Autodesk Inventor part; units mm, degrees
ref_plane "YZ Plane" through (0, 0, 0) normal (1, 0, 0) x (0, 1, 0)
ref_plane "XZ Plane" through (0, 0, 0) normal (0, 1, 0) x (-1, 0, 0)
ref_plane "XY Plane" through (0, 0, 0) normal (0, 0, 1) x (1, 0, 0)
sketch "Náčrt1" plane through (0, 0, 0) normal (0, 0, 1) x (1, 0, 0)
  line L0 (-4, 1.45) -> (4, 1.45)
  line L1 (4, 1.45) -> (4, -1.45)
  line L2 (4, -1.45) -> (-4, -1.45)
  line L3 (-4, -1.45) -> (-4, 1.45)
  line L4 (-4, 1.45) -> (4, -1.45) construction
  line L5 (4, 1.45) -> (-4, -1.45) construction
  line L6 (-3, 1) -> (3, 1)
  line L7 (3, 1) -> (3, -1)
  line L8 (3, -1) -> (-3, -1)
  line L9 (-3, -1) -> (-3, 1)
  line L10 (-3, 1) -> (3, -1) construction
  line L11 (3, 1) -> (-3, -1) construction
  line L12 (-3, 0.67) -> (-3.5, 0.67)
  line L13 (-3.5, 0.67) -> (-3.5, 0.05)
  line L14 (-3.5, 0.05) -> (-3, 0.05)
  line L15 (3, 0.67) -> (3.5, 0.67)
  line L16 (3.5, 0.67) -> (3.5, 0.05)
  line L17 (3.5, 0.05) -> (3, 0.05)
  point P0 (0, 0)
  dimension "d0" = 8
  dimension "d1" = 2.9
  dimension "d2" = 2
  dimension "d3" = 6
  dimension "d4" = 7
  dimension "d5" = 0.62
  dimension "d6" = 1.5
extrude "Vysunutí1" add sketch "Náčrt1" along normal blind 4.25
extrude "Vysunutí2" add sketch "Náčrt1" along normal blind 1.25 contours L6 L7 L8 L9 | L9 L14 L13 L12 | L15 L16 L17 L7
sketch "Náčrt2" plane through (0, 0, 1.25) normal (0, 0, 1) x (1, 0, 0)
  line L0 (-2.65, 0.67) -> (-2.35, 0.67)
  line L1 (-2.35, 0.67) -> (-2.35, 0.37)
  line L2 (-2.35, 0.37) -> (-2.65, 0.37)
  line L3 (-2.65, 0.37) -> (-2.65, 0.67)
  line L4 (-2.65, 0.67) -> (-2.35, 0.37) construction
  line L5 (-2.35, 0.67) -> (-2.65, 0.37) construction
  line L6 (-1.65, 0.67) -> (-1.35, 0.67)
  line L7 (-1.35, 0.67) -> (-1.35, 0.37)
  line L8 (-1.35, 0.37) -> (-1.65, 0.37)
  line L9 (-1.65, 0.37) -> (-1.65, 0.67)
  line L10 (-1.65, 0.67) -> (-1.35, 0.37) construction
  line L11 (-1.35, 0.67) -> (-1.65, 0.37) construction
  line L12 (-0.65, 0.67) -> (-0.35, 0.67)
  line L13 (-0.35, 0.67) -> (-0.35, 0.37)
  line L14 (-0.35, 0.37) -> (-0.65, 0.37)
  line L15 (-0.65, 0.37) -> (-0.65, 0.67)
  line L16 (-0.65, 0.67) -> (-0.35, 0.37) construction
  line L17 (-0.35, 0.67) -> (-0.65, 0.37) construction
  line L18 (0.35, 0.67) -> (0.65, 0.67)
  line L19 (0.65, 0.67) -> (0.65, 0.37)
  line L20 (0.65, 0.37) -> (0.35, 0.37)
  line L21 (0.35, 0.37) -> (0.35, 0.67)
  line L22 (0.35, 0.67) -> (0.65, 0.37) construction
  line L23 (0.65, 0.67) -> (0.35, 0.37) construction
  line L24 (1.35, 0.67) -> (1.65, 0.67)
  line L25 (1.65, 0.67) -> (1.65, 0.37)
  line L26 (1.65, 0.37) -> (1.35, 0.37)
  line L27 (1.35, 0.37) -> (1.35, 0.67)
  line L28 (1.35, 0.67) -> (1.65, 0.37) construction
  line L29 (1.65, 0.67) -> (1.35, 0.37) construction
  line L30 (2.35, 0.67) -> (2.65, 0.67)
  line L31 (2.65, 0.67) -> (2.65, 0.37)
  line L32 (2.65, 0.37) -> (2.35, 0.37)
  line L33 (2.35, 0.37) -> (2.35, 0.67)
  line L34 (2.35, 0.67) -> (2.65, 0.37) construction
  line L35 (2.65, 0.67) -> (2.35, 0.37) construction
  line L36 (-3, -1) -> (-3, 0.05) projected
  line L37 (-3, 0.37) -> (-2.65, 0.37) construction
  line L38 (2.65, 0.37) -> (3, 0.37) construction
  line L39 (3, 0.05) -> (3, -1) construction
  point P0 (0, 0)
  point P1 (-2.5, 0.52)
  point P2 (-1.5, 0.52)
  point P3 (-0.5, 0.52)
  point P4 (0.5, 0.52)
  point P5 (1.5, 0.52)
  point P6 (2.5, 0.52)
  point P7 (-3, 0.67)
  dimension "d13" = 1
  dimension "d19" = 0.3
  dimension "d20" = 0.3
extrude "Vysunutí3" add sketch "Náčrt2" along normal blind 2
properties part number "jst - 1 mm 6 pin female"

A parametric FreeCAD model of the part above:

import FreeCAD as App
import Part
import Sketcher

V = App.Vector
Q = App.Units.Quantity

doc = App.newDocument("Part")
params = doc.addObject("Spreadsheet::Sheet", "Params")
for row, (alias, value) in enumerate([
    ("sketch1_width", "8 mm"),
    ("sketch1_width2", "6 mm"),
    ("sketch1_height", "2.9 mm"),
    ("sketch1_height2", "0.62 mm"),
    ("sketch1_width3", "0.5 mm"),
    ("pad1_length", "4.25 mm"),
    ("sketch2_width", "6 mm"),
    ("sketch2_height", "0.62 mm"),
    ("sketch2_width2", "0.5 mm"),
    ("sketch2_height2", "0.33 mm"),
    ("pad2_length", "1.25 mm"),
    ("sketch3_width", "0.3 mm"),
    ("pad3_length", "2 mm"),
], start=1):
    params.set(f"A{row}", alias)
    params.set(f"B{row}", "=" + value)
    params.setAlias(f"B{row}", alias)

body = doc.addObject("PartDesign::Body", "Body")

sketch1 = body.newObject("Sketcher::SketchObject", "Sketch")
sketch1.AttachmentSupport = (doc.getObject("XY_Plane"), [""])
sketch1.MapMode = "FlatFace"
sketch1.addGeometry([
    Part.LineSegment(V(4, 1.45, 0), V(-4, 1.45, 0)),
    Part.LineSegment(V(-4, 1.45, 0), V(-4, -1.45, 0)),
    Part.LineSegment(V(-4, -1.45, 0), V(4, -1.45, 0)),
    Part.LineSegment(V(4, -1.45, 0), V(4, 1.45, 0)),
    Part.LineSegment(V(-3, 0.67, 0), V(-3, 1, 0)),
    Part.LineSegment(V(-3, 1, 0), V(3, 1, 0)),
    Part.LineSegment(V(3, 1, 0), V(3, 0.67, 0)),
    Part.LineSegment(V(3, 0.67, 0), V(3.5, 0.67, 0)),
    Part.LineSegment(V(3.5, 0.67, 0), V(3.5, 0.05, 0)),
    Part.LineSegment(V(3.5, 0.05, 0), V(3, 0.05, 0)),
    Part.LineSegment(V(3, 0.05, 0), V(3, -1, 0)),
    Part.LineSegment(V(3, -1, 0), V(-3, -1, 0)),
    Part.LineSegment(V(-3, -1, 0), V(-3, 0.05, 0)),
    Part.LineSegment(V(-3, 0.05, 0), V(-3.5, 0.05, 0)),
    Part.LineSegment(V(-3.5, 0.05, 0), V(-3.5, 0.67, 0)),
    Part.LineSegment(V(-3.5, 0.67, 0), V(-3, 0.67, 0)),
], False)
sketch1.addConstraint([
    Sketcher.Constraint("Coincident", 0, 2, 1, 1),
    Sketcher.Constraint("Coincident", 1, 2, 2, 1),
    Sketcher.Constraint("Coincident", 2, 2, 3, 1),
    Sketcher.Constraint("Coincident", 3, 2, 0, 1),
    Sketcher.Constraint("Coincident", 4, 2, 5, 1),
    Sketcher.Constraint("Coincident", 5, 2, 6, 1),
    Sketcher.Constraint("Coincident", 6, 2, 7, 1),
    Sketcher.Constraint("Coincident", 7, 2, 8, 1),
    Sketcher.Constraint("Coincident", 8, 2, 9, 1),
    Sketcher.Constraint("Coincident", 9, 2, 10, 1),
    Sketcher.Constraint("Coincident", 10, 2, 11, 1),
    Sketcher.Constraint("Coincident", 11, 2, 12, 1),
    Sketcher.Constraint("Coincident", 12, 2, 13, 1),
    Sketcher.Constraint("Coincident", 13, 2, 14, 1),
    Sketcher.Constraint("Coincident", 14, 2, 15, 1),
    Sketcher.Constraint("Coincident", 15, 2, 4, 1),
    Sketcher.Constraint("Horizontal", 0),
    Sketcher.Constraint("Vertical", 1),
    Sketcher.Constraint("Horizontal", 2),
    Sketcher.Constraint("Vertical", 3),
    Sketcher.Constraint("Vertical", 4),
    Sketcher.Constraint("Horizontal", 5),
    Sketcher.Constraint("Vertical", 6),
    Sketcher.Constraint("Horizontal", 7),
    Sketcher.Constraint("Vertical", 8),
    Sketcher.Constraint("Horizontal", 9),
    Sketcher.Constraint("Vertical", 10),
    Sketcher.Constraint("Horizontal", 11),
    Sketcher.Constraint("Vertical", 12),
    Sketcher.Constraint("Horizontal", 13),
    Sketcher.Constraint("Vertical", 14),
    Sketcher.Constraint("Horizontal", 15),
    Sketcher.Constraint("Symmetric", 0, 2, 2, 2, -1, 1),
    Sketcher.Constraint("Symmetric", 4, 2, 10, 2, -1, 1),
    Sketcher.Constraint("Symmetric", 9, 2, 12, 2, -2),
    Sketcher.Constraint("Symmetric", 7, 2, 14, 2, -2),
    Sketcher.Constraint("Vertical", 6, 2, 9, 2),
    Sketcher.Constraint("DistanceX", 0, 2, 0, 1, Q("8 mm")),
    Sketcher.Constraint("DistanceX", 5, 1, 5, 2, Q("6 mm")),
    Sketcher.Constraint("DistanceY", 1, 2, 1, 1, Q("2.9 mm")),
    Sketcher.Constraint("DistanceY", 11, 2, 4, 2, Q("2 mm")),
    Sketcher.Constraint("DistanceY", 8, 2, 8, 1, Q("0.62 mm")),
    Sketcher.Constraint("DistanceY", 2, 2, 8, 2, Q("1.5 mm")),
    Sketcher.Constraint("DistanceX", 7, 1, 7, 2, Q("0.5 mm")),
])
sketch1.setExpression("Constraints[37]", "Params.sketch1_width")
sketch1.setExpression("Constraints[38]", "Params.sketch1_width2")
sketch1.setExpression("Constraints[39]", "Params.sketch1_height")
sketch1.setExpression("Constraints[41]", "Params.sketch1_height2")
sketch1.setExpression("Constraints[43]", "Params.sketch1_width3")
pad1 = body.newObject("PartDesign::Pad", "Pad")
pad1.Profile = sketch1
pad1.setExpression("Length", "Params.pad1_length")

sketch2 = body.newObject("Sketcher::SketchObject", "Sketch001")
sketch2.AttachmentSupport = (doc.getObject("XY_Plane"), [""])
sketch2.MapMode = "FlatFace"
sketch2.addGeometry([
    Part.LineSegment(V(3, 1, 0), V(-3, 1, 0)),
    Part.LineSegment(V(-3, 1, 0), V(-3, 0.67, 0)),
    Part.LineSegment(V(-3, 0.67, 0), V(-3.5, 0.67, 0)),
    Part.LineSegment(V(-3.5, 0.67, 0), V(-3.5, 0.05, 0)),
    Part.LineSegment(V(-3.5, 0.05, 0), V(-3, 0.05, 0)),
    Part.LineSegment(V(-3, 0.05, 0), V(-3, -1, 0)),
    Part.LineSegment(V(-3, -1, 0), V(3, -1, 0)),
    Part.LineSegment(V(3, -1, 0), V(3, 0.05, 0)),
    Part.LineSegment(V(3, 0.05, 0), V(3.5, 0.05, 0)),
    Part.LineSegment(V(3.5, 0.05, 0), V(3.5, 0.67, 0)),
    Part.LineSegment(V(3.5, 0.67, 0), V(3, 0.67, 0)),
    Part.LineSegment(V(3, 0.67, 0), V(3, 1, 0)),
], False)
sketch2.addConstraint([
    Sketcher.Constraint("Coincident", 0, 2, 1, 1),
    Sketcher.Constraint("Coincident", 1, 2, 2, 1),
    Sketcher.Constraint("Coincident", 2, 2, 3, 1),
    Sketcher.Constraint("Coincident", 3, 2, 4, 1),
    Sketcher.Constraint("Coincident", 4, 2, 5, 1),
    Sketcher.Constraint("Coincident", 5, 2, 6, 1),
    Sketcher.Constraint("Coincident", 6, 2, 7, 1),
    Sketcher.Constraint("Coincident", 7, 2, 8, 1),
    Sketcher.Constraint("Coincident", 8, 2, 9, 1),
    Sketcher.Constraint("Coincident", 9, 2, 10, 1),
    Sketcher.Constraint("Coincident", 10, 2, 11, 1),
    Sketcher.Constraint("Coincident", 11, 2, 0, 1),
    Sketcher.Constraint("Horizontal", 0),
    Sketcher.Constraint("Vertical", 1),
    Sketcher.Constraint("Horizontal", 2),
    Sketcher.Constraint("Vertical", 3),
    Sketcher.Constraint("Horizontal", 4),
    Sketcher.Constraint("Vertical", 5),
    Sketcher.Constraint("Horizontal", 6),
    Sketcher.Constraint("Vertical", 7),
    Sketcher.Constraint("Horizontal", 8),
    Sketcher.Constraint("Vertical", 9),
    Sketcher.Constraint("Horizontal", 10),
    Sketcher.Constraint("Vertical", 11),
    Sketcher.Constraint("Symmetric", 0, 2, 6, 2, -1, 1),
    Sketcher.Constraint("Symmetric", 4, 2, 7, 2, -2),
    Sketcher.Constraint("Symmetric", 2, 2, 9, 2, -2),
    Sketcher.Constraint("Vertical", 7, 2, 10, 2),
    Sketcher.Constraint("DistanceX", 0, 2, 0, 1, Q("6 mm")),
    Sketcher.Constraint("DistanceY", 5, 2, 0, 2, Q("2 mm")),
    Sketcher.Constraint("DistanceY", 3, 2, 3, 1, Q("0.62 mm")),
    Sketcher.Constraint("DistanceX", 2, 2, 2, 1, Q("0.5 mm")),
    Sketcher.Constraint("DistanceY", 1, 2, 1, 1, Q("0.33 mm")),
])
sketch2.setExpression("Constraints[28]", "Params.sketch2_width")
sketch2.setExpression("Constraints[30]", "Params.sketch2_height")
sketch2.setExpression("Constraints[31]", "Params.sketch2_width2")
sketch2.setExpression("Constraints[32]", "Params.sketch2_height2")
pad2 = body.newObject("PartDesign::Pad", "Pad001")
pad2.Profile = sketch2
pad2.setExpression("Length", "Params.pad2_length")

sketch3 = body.newObject("Sketcher::SketchObject", "Sketch002")
sketch3.AttachmentSupport = (doc.getObject("XY_Plane"), [""])
sketch3.MapMode = "FlatFace"
sketch3.AttachmentOffset = App.Placement(V(0, 0, 1.25), App.Rotation())
sketch3.addGeometry([
    Part.LineSegment(V(-2.35, 0.67, 0), V(-2.65, 0.67, 0)),
    Part.LineSegment(V(-2.65, 0.67, 0), V(-2.65, 0.37, 0)),
    Part.LineSegment(V(-2.65, 0.37, 0), V(-2.35, 0.37, 0)),
    Part.LineSegment(V(-2.35, 0.37, 0), V(-2.35, 0.67, 0)),
    Part.LineSegment(V(-1.35, 0.67, 0), V(-1.65, 0.67, 0)),
    Part.LineSegment(V(-1.65, 0.67, 0), V(-1.65, 0.37, 0)),
    Part.LineSegment(V(-1.65, 0.37, 0), V(-1.35, 0.37, 0)),
    Part.LineSegment(V(-1.35, 0.37, 0), V(-1.35, 0.67, 0)),
    Part.LineSegment(V(-0.35, 0.67, 0), V(-0.65, 0.67, 0)),
    Part.LineSegment(V(-0.65, 0.67, 0), V(-0.65, 0.37, 0)),
    Part.LineSegment(V(-0.65, 0.37, 0), V(-0.35, 0.37, 0)),
    Part.LineSegment(V(-0.35, 0.37, 0), V(-0.35, 0.67, 0)),
    Part.LineSegment(V(0.65, 0.67, 0), V(0.35, 0.67, 0)),
    Part.LineSegment(V(0.35, 0.67, 0), V(0.35, 0.37, 0)),
    Part.LineSegment(V(0.35, 0.37, 0), V(0.65, 0.37, 0)),
    Part.LineSegment(V(0.65, 0.37, 0), V(0.65, 0.67, 0)),
    Part.LineSegment(V(1.65, 0.67, 0), V(1.35, 0.67, 0)),
    Part.LineSegment(V(1.35, 0.67, 0), V(1.35, 0.37, 0)),
    Part.LineSegment(V(1.35, 0.37, 0), V(1.65, 0.37, 0)),
    Part.LineSegment(V(1.65, 0.37, 0), V(1.65, 0.67, 0)),
    Part.LineSegment(V(2.65, 0.67, 0), V(2.35, 0.67, 0)),
    Part.LineSegment(V(2.35, 0.67, 0), V(2.35, 0.37, 0)),
    Part.LineSegment(V(2.35, 0.37, 0), V(2.65, 0.37, 0)),
    Part.LineSegment(V(2.65, 0.37, 0), V(2.65, 0.67, 0)),
], False)
sketch3.addConstraint([
    Sketcher.Constraint("Coincident", 0, 2, 1, 1),
    Sketcher.Constraint("Coincident", 1, 2, 2, 1),
    Sketcher.Constraint("Coincident", 2, 2, 3, 1),
    Sketcher.Constraint("Coincident", 3, 2, 0, 1),
    Sketcher.Constraint("Coincident", 4, 2, 5, 1),
    Sketcher.Constraint("Coincident", 5, 2, 6, 1),
    Sketcher.Constraint("Coincident", 6, 2, 7, 1),
    Sketcher.Constraint("Coincident", 7, 2, 4, 1),
    Sketcher.Constraint("Coincident", 8, 2, 9, 1),
    Sketcher.Constraint("Coincident", 9, 2, 10, 1),
    Sketcher.Constraint("Coincident", 10, 2, 11, 1),
    Sketcher.Constraint("Coincident", 11, 2, 8, 1),
    Sketcher.Constraint("Coincident", 12, 2, 13, 1),
    Sketcher.Constraint("Coincident", 13, 2, 14, 1),
    Sketcher.Constraint("Coincident", 14, 2, 15, 1),
    Sketcher.Constraint("Coincident", 15, 2, 12, 1),
    Sketcher.Constraint("Coincident", 16, 2, 17, 1),
    Sketcher.Constraint("Coincident", 17, 2, 18, 1),
    Sketcher.Constraint("Coincident", 18, 2, 19, 1),
    Sketcher.Constraint("Coincident", 19, 2, 16, 1),
    Sketcher.Constraint("Coincident", 20, 2, 21, 1),
    Sketcher.Constraint("Coincident", 21, 2, 22, 1),
    Sketcher.Constraint("Coincident", 22, 2, 23, 1),
    Sketcher.Constraint("Coincident", 23, 2, 20, 1),
    Sketcher.Constraint("Horizontal", 0),
    Sketcher.Constraint("Vertical", 1),
    Sketcher.Constraint("Horizontal", 2),
    Sketcher.Constraint("Vertical", 3),
    Sketcher.Constraint("Horizontal", 4),
    Sketcher.Constraint("Vertical", 5),
    Sketcher.Constraint("Horizontal", 6),
    Sketcher.Constraint("Vertical", 7),
    Sketcher.Constraint("Horizontal", 8),
    Sketcher.Constraint("Vertical", 9),
    Sketcher.Constraint("Horizontal", 10),
    Sketcher.Constraint("Vertical", 11),
    Sketcher.Constraint("Horizontal", 12),
    Sketcher.Constraint("Vertical", 13),
    Sketcher.Constraint("Horizontal", 14),
    Sketcher.Constraint("Vertical", 15),
    Sketcher.Constraint("Horizontal", 16),
    Sketcher.Constraint("Vertical", 17),
    Sketcher.Constraint("Horizontal", 18),
    Sketcher.Constraint("Vertical", 19),
    Sketcher.Constraint("Horizontal", 20),
    Sketcher.Constraint("Vertical", 21),
    Sketcher.Constraint("Horizontal", 22),
    Sketcher.Constraint("Vertical", 23),
    Sketcher.Constraint("Symmetric", 11, 2, 12, 2, -2),
    Sketcher.Constraint("Symmetric", 9, 2, 14, 2, -2),
    Sketcher.Constraint("Symmetric", 7, 2, 16, 2, -2),
    Sketcher.Constraint("Symmetric", 5, 2, 18, 2, -2),
    Sketcher.Constraint("Symmetric", 3, 2, 20, 2, -2),
    Sketcher.Constraint("Symmetric", 1, 2, 22, 2, -2),
    Sketcher.Constraint("Horizontal", 3, 2, 4, 2),
    Sketcher.Constraint("Horizontal", 2, 2, 5, 2),
    Sketcher.Constraint("Horizontal", 7, 2, 8, 2),
    Sketcher.Constraint("Horizontal", 6, 2, 9, 2),
    Sketcher.Constraint("Equal", 2, 4),
    Sketcher.Constraint("Equal", 6, 8),
    Sketcher.Constraint("Equal", 22, 1),
    Sketcher.Constraint("DistanceX", 0, 2, 0, 1, Q("0.3 mm")),
    Sketcher.Constraint("DistanceX", 0, 2, 4, 2, Q("1 mm")),
    Sketcher.Constraint("DistanceX", 4, 2, 8, 2, Q("1 mm")),
    Sketcher.Constraint("DistanceX", 8, 2, 12, 2, Q("1 mm")),
    Sketcher.Constraint("DistanceY", -1, 1, 0, 2, Q("0.67 mm")),
])
sketch3.setExpression("Constraints[61]", "Params.sketch3_width")
pad3 = body.newObject("PartDesign::Pad", "Pad002")
pad3.Profile = sketch3
pad3.setExpression("Length", "Params.pad3_length")

doc.recompute()
